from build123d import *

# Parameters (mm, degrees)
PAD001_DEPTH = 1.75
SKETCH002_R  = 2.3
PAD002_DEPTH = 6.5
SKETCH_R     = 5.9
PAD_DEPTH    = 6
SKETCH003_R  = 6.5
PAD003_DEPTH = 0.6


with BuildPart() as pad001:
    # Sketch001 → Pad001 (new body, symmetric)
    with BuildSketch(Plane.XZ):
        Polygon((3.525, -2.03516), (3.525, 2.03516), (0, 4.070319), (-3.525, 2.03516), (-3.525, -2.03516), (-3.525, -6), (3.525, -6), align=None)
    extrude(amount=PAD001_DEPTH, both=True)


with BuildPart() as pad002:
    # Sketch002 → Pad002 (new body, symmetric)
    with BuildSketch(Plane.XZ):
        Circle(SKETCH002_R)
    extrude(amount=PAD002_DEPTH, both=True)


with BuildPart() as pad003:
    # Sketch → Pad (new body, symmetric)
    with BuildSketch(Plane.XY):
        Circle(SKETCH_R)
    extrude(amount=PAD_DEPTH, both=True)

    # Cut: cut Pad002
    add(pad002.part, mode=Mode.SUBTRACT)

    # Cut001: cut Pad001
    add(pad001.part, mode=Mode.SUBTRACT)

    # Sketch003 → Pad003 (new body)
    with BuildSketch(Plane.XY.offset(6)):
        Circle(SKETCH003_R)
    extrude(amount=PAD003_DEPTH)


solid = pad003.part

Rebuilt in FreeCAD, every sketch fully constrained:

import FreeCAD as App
import Part
import Sketcher

V = App.Vector
Q = App.Units.Quantity

doc = App.newDocument("Part")
body = doc.addObject("PartDesign::Body", "Body")

# Sketch on XZ plane
sketch1 = body.newObject("Sketcher::SketchObject", "Sketch")
sketch1.AttachmentSupport = (doc.getObject("XZ_Plane"), [""])
sketch1.MapMode = "FlatFace"
sketch1.addGeometry([
    Part.LineSegment(V(3.5, 2, 0), V(0, 4.1, 0)),  # 0
    Part.LineSegment(V(0, 4.1, 0), V(-3.5, 2, 0)),  # 1
    Part.LineSegment(V(-3.5, 2, 0), V(-3.5, -6, 0)),  # 2
    Part.LineSegment(V(-3.5, -6, 0), V(3.5, -6, 0)),  # 3
    Part.LineSegment(V(3.5, -6, 0), V(3.5, 2, 0)),  # 4
], False)
sketch1.addConstraint([
    Sketcher.Constraint("Coincident", 0, 2, 1, 1),
    Sketcher.Constraint("Coincident", 1, 2, 2, 1),
    Sketcher.Constraint("Coincident", 2, 2, 3, 1),
    Sketcher.Constraint("Coincident", 3, 2, 4, 1),
    Sketcher.Constraint("Coincident", 4, 2, 0, 1),
    Sketcher.Constraint("Vertical", 2),
    Sketcher.Constraint("Horizontal", 3),
    Sketcher.Constraint("Vertical", 4),
    Sketcher.Constraint("Symmetric", 1, 2, 4, 2, -2),
    Sketcher.Constraint("PointOnObject", 0, 2, -2),
    Sketcher.Constraint("Angle", 0, Q("150.000009 deg")),
    Sketcher.Constraint("DistanceY", 2, 2, -1, 1, Q("6 mm")),
    Sketcher.Constraint("DistanceX", 3, 1, 3, 2, Q("7.05 mm")),
    Sketcher.Constraint("DistanceY", 2, 2, 2, 1, Q("8.03516 mm")),
])
pad1 = body.newObject("PartDesign::Pad", "Pad")
pad1.Profile = sketch1
pad1.Length = 3.5
pad1.Midplane = True
body2 = doc.addObject("PartDesign::Body", "Body001")

# Sketch on XZ plane
sketch2 = body2.newObject("Sketcher::SketchObject", "Sketch001")
sketch2.AttachmentSupport = (doc.getObject("XZ_Plane001"), [""])
sketch2.MapMode = "FlatFace"
sketch2.addGeometry(Part.Circle(V(0, 0, 0), V(0, 0, 1), 2.3), False)
sketch2.addConstraint([
    Sketcher.Constraint("Coincident", 0, 3, -1, 1),
    Sketcher.Constraint("Diameter", 0, Q("4.6 mm")),
])
pad2 = body2.newObject("PartDesign::Pad", "Pad001")
pad2.Profile = sketch2
pad2.Length = 13
pad2.Midplane = True
body3 = doc.addObject("PartDesign::Body", "Body002")

# Sketch on XY plane
sketch3 = body3.newObject("Sketcher::SketchObject", "Sketch002")
sketch3.AttachmentSupport = (doc.getObject("XY_Plane002"), [""])
sketch3.MapMode = "FlatFace"
sketch3.addGeometry(Part.Circle(V(0, 0, 0), V(0, 0, 1), 6), False)
sketch3.addConstraint([
    Sketcher.Constraint("Coincident", 0, 3, -1, 1),
    Sketcher.Constraint("Diameter", 0, Q("11.8 mm")),
])
pad3 = body3.newObject("PartDesign::Pad", "Pad002")
pad3.Profile = sketch3
pad3.Length = 12
pad3.Midplane = True
doc.recompute()

boolean = body3.newObject("PartDesign::Boolean", "Boolean")
boolean.Type = "Cut"
boolean.addObjects([body2])
doc.recompute()

boolean2 = body3.newObject("PartDesign::Boolean", "Boolean001")
boolean2.Type = "Cut"
boolean2.addObjects([body])

# Sketch on XY plane
sketch4 = body3.newObject("Sketcher::SketchObject", "Sketch003")
sketch4.AttachmentSupport = (doc.getObject("XY_Plane002"), [""])
sketch4.MapMode = "FlatFace"
sketch4.AttachmentOffset = App.Placement(V(0, 0, 6), App.Rotation())
sketch4.addGeometry(Part.Circle(V(0, 0, 0), V(0, 0, 1), 6), False)
sketch4.addConstraint([
    Sketcher.Constraint("Coincident", 0, 3, -1, 1),
    Sketcher.Constraint("Diameter", 0, Q("13 mm")),
])
pad4 = body3.newObject("PartDesign::Pad", "Pad003")
pad4.Profile = sketch4
pad4.Length = 0.6

doc.recompute()
